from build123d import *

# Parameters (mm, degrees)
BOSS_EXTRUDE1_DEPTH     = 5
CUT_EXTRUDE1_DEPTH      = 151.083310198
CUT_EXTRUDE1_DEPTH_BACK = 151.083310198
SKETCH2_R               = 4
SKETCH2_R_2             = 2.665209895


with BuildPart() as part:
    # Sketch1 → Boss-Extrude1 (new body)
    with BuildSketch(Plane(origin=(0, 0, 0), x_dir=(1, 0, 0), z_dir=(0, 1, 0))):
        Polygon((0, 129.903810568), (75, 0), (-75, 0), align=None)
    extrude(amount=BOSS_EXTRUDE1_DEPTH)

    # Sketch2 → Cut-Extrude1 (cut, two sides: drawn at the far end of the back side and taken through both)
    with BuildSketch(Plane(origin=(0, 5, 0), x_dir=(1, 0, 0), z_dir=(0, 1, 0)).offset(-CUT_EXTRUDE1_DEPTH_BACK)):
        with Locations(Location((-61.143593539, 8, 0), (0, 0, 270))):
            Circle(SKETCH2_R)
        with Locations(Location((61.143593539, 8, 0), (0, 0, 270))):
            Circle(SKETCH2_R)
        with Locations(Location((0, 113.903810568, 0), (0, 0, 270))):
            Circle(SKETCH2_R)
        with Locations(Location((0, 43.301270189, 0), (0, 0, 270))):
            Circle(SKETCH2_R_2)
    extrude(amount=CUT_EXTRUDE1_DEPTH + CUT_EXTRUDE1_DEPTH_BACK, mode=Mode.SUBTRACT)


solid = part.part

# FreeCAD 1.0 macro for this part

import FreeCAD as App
import Part
import Sketcher
from FreeCAD import Vector
Q = App.Units.Quantity

doc = App.newDocument("Part")
params = doc.addObject("Spreadsheet::Sheet", "Params")
for row, (alias, value) in enumerate([
    ("sketch1_width", "150 mm"),
    ("pad1_length", "5 mm"),
    ("sketch2_diameter", "8 mm"),
], start=1):
    params.set(f"A{row}", alias)
    params.set(f"B{row}", "=" + value)
    params.setAlias(f"B{row}", alias)

body = doc.addObject("PartDesign::Body", "Body")

# Sketch on XZ plane
sketch1 = doc.addObject("Sketcher::SketchObject", "Sketch")
body.addObject(sketch1)
sketch1.AttachmentSupport = (doc.XZ_Plane, [""])
sketch1.MapMode = "FlatFace"
sketch1.addGeometry([
    Part.LineSegment(Vector(75, 0, 0), Vector(0, -130, 0)),
    Part.LineSegment(Vector(0, -130, 0), Vector(-75, 0, 0)),
    Part.LineSegment(Vector(-75, 0, 0), Vector(75, 0, 0)),
], False)
sketch1.addConstraint([
    Sketcher.Constraint("Coincident", 0, 2, 1, 1),
    Sketcher.Constraint("Coincident", 1, 2, 2, 1),
    Sketcher.Constraint("Coincident", 2, 2, 0, 1),
    Sketcher.Constraint("Horizontal", 2),
    Sketcher.Constraint("Symmetric", 1, 2, 2, 2, -1, 1),
    Sketcher.Constraint("PointOnObject", 0, 2, -2),
    Sketcher.Constraint("DistanceX", 2, 1, 2, 2, 150.0),
    Sketcher.Constraint("Angle", 0, Q("-120 deg")),
])
sketch1.setExpression("Constraints[6]", "Params.sketch1_width")
pad1 = doc.addObject("PartDesign::Pad", "Pad")
body.addObject(pad1)
pad1.Profile = sketch1
pad1.setExpression("Length", "Params.pad1_length")
pad1.Reversed = True

# Sketch on XZ plane
sketch2 = doc.addObject("Sketcher::SketchObject", "Sketch001")
body.addObject(sketch2)
sketch2.AttachmentSupport = (doc.XZ_Plane, [""])
sketch2.MapMode = "FlatFace"
sketch2.AttachmentOffset = App.Placement(Vector(0, 0, -5), App.Rotation())
sketch2.addGeometry([
    Part.Circle(Vector(-61.1, -8, 0), Vector(0, 0, 1), 4),
    Part.Circle(Vector(61.1, -8, 0), Vector(0, 0, 1), 4),
    Part.Circle(Vector(0, -113.9, 0), Vector(0, 0, 1), 4),
    Part.Circle(Vector(0, -43.3, 0), Vector(0, 0, 1), 2.7),
], False)
sketch2.addConstraint([
    Sketcher.Constraint("Equal", 0, 1),
    Sketcher.Constraint("Equal", 1, 2),
    Sketcher.Constraint("Symmetric", 0, 3, 1, 3, -2),
    Sketcher.Constraint("PointOnObject", 2, 3, -2),
    Sketcher.Constraint("PointOnObject", 3, 3, -2),
    Sketcher.Constraint("Diameter", 0, 8.0),
    Sketcher.Constraint("DistanceY", 0, 3, -1, 1, 8.0),
    Sketcher.Constraint("Diameter", 3, 5.33042),
    Sketcher.Constraint("DistanceY", 2, 3, -1, 1, 113.903811),
    Sketcher.Constraint("DistanceY", 3, 3, -1, 1, 43.30127),
    Sketcher.Constraint("DistanceX", 0, 3, -1, 1, 61.143594),
])
sketch2.setExpression("Constraints[5]", "Params.sketch2_diameter")
pocket1 = doc.addObject("PartDesign::Pocket", "Pocket")
body.addObject(pocket1)
pocket1.Profile = sketch2
pocket1.Type = "ThroughAll"
pocket1.Midplane = True

doc.recompute()
